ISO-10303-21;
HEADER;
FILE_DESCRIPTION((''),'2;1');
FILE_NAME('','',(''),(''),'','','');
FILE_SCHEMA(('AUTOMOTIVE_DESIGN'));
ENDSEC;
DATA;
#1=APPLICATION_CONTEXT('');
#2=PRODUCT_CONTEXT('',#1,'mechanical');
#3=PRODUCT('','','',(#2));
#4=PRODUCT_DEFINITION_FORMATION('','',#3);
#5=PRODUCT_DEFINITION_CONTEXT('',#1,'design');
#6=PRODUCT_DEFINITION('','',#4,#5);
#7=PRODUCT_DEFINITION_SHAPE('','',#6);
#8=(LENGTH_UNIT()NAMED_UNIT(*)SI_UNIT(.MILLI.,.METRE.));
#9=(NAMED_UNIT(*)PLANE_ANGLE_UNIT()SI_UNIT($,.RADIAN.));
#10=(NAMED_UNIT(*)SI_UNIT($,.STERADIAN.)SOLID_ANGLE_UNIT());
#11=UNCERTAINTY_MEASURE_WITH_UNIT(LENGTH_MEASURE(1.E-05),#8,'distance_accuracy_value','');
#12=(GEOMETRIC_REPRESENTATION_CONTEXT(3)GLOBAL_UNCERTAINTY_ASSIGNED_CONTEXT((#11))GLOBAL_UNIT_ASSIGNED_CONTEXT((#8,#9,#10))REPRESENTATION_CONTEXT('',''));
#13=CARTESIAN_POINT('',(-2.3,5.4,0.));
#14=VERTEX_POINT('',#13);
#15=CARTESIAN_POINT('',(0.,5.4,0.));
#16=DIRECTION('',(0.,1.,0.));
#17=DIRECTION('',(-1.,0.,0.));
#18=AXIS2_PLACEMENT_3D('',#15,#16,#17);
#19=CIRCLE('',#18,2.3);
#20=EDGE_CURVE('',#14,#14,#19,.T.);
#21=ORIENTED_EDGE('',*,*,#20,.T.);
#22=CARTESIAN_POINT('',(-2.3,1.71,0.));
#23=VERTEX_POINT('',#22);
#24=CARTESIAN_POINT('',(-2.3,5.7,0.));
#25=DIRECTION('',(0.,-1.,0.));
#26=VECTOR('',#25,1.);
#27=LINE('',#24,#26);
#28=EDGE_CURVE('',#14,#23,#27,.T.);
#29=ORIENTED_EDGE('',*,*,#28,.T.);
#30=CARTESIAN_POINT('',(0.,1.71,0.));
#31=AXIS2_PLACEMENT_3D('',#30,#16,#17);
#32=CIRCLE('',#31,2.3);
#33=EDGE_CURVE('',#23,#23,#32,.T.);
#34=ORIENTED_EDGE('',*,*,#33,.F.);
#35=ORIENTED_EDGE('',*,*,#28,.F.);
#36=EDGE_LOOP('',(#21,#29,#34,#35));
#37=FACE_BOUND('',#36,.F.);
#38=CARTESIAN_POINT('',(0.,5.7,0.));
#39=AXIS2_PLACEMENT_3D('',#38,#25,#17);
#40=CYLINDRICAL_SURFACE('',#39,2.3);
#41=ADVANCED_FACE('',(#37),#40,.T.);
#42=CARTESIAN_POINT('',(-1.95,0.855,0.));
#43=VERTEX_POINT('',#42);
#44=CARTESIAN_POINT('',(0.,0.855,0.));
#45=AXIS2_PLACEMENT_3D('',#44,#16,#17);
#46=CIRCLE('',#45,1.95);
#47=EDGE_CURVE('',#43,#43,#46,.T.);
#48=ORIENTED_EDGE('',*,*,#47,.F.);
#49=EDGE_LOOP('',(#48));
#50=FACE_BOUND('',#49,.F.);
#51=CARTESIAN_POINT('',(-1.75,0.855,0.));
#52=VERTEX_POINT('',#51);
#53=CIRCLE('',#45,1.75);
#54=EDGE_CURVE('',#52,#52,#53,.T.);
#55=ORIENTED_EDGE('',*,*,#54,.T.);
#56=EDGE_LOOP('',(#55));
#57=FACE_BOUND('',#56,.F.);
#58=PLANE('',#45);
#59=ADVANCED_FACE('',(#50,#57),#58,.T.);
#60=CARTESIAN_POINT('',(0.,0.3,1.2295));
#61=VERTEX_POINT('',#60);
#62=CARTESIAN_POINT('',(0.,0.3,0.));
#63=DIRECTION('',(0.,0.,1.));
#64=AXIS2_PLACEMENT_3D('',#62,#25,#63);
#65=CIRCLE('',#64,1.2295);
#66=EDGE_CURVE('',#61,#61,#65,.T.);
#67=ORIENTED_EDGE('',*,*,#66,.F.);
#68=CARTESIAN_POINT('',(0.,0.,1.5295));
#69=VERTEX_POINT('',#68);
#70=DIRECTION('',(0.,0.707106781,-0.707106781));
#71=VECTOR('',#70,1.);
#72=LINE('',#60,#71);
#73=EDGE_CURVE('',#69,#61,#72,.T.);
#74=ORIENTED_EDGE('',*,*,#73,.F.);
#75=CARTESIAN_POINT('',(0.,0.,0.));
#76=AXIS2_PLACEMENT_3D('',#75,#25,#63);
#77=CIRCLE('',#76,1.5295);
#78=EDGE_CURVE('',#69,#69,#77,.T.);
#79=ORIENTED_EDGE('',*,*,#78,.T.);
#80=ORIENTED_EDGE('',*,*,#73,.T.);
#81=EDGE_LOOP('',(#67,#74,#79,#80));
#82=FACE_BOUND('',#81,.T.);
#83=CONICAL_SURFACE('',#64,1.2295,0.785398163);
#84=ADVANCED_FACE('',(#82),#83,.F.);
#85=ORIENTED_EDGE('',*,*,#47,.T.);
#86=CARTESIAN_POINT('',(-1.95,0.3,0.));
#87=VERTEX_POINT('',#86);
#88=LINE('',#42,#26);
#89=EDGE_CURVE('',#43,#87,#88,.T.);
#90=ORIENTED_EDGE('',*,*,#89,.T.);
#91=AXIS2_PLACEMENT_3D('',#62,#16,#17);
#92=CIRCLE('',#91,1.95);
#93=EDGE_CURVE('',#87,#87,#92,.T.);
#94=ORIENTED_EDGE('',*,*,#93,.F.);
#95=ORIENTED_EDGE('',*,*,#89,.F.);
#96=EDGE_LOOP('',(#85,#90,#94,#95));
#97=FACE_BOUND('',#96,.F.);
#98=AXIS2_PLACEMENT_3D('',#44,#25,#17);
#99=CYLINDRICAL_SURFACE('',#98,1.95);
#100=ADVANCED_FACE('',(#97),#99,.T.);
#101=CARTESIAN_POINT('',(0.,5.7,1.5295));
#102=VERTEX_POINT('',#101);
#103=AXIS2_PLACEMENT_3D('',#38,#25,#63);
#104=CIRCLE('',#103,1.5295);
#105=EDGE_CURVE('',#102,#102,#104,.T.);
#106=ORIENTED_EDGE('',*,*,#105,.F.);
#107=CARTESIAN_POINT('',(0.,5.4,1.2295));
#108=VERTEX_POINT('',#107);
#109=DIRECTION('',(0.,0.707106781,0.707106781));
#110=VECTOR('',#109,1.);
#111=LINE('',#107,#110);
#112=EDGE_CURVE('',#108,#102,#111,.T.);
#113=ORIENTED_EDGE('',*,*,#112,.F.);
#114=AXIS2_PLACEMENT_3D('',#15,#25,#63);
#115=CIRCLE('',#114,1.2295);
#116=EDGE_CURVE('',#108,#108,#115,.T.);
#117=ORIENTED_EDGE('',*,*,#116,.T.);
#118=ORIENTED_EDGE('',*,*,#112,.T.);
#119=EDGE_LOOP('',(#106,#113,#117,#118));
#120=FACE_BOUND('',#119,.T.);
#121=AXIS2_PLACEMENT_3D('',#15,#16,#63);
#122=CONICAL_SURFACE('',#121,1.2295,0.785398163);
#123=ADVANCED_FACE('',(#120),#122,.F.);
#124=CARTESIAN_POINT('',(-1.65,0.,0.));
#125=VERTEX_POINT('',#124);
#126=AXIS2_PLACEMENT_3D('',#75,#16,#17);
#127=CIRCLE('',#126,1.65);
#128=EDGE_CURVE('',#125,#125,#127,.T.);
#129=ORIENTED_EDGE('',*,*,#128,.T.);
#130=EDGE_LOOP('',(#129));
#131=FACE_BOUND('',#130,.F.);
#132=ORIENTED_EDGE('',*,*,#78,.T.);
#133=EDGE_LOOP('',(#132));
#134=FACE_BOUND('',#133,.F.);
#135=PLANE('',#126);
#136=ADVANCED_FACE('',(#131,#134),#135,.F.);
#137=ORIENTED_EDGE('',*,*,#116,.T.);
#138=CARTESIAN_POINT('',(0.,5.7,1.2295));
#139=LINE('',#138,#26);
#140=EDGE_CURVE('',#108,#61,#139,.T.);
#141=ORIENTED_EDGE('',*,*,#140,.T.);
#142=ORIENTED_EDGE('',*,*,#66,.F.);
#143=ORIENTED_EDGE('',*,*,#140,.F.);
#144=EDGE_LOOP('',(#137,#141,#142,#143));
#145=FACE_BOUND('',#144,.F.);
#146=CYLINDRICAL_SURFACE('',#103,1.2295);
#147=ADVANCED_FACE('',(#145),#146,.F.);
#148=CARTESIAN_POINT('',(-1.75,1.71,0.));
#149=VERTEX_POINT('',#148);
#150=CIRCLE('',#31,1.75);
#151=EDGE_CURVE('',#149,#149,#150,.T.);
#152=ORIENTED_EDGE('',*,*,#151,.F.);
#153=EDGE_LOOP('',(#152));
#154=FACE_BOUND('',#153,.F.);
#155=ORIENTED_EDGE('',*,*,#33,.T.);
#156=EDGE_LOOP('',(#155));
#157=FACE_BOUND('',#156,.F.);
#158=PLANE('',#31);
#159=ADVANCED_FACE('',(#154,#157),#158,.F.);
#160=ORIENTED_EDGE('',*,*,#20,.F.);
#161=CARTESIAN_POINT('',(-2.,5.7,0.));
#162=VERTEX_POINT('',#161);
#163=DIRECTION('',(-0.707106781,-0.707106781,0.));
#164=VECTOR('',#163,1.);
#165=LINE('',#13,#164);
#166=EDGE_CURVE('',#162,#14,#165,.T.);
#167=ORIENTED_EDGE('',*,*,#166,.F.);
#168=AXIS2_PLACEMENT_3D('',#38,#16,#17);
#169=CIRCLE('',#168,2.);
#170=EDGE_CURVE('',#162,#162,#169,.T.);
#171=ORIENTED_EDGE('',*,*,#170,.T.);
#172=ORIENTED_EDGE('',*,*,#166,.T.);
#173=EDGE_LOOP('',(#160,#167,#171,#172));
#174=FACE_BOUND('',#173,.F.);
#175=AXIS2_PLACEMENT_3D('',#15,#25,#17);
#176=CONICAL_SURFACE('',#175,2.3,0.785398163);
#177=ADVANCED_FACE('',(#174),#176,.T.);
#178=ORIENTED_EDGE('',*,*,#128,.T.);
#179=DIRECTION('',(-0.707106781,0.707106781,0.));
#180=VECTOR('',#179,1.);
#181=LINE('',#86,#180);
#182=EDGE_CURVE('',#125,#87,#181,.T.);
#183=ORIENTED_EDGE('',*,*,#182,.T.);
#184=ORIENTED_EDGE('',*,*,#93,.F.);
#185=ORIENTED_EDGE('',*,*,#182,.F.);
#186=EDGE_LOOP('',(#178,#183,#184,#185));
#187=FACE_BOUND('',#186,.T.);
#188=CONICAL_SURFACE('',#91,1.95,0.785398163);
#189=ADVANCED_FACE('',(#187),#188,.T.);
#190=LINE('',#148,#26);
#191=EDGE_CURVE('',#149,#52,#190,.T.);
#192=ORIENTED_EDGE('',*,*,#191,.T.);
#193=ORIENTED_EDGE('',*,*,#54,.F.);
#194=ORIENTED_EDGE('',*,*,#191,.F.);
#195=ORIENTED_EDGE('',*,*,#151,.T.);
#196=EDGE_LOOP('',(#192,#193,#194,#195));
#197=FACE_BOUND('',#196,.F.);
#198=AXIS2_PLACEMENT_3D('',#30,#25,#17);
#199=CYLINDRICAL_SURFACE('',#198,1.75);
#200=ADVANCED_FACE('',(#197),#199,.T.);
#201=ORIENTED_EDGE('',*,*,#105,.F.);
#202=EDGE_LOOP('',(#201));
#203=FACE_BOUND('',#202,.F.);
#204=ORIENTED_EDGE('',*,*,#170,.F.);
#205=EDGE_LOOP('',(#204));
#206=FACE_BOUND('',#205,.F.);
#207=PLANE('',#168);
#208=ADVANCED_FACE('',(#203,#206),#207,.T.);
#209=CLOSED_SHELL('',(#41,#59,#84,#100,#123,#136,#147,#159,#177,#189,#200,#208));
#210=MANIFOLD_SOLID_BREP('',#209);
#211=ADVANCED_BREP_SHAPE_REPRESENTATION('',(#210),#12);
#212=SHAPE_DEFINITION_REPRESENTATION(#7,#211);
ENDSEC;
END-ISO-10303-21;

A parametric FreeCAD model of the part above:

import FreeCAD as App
import Part
import Sketcher
from FreeCAD import Vector
Q = App.Units.Quantity


def edges_at(feature, points):
    """Names of the edges that pass closest to the given points."""
    edges = feature.Shape.Edges
    near = lambda p: min(range(len(edges)), key=lambda i: edges[i].distToShape(Part.Vertex(*p))[0])
    return sorted({f"Edge{near(p) + 1}" for p in points})

doc = App.newDocument("Part")
body = doc.addObject("PartDesign::Body", "Body")

# Sketch on XY plane
sketch1 = body.newObject("Sketcher::SketchObject", "Sketch")
sketch1.AttachmentSupport = (doc.getObject("XY_Plane"), [""])
sketch1.MapMode = "FlatFace"
sketch1.addGeometry(Part.LineSegment(Vector(-1.95, 0, 0), Vector(0, 0, 0)), False)
sketch1.addGeometry(Part.LineSegment(Vector(0, 0, 0), Vector(0, 5.7, 0)), False)
sketch1.addGeometry(Part.LineSegment(Vector(0, 5.7, 0), Vector(-2.3, 5.7, 0)), False)
sketch1.addGeometry(Part.LineSegment(Vector(-2.3, 5.7, 0), Vector(-2.3, 1.71, 0)), False)
sketch1.addGeometry(Part.LineSegment(Vector(-2.3, 1.71, 0), Vector(-1.75, 1.71, 0)), False)
sketch1.addGeometry(Part.LineSegment(Vector(-1.75, 1.71, 0), Vector(-1.75, 0.85, 0)), False)
sketch1.addGeometry(Part.LineSegment(Vector(-1.75, 0.85, 0), Vector(-1.95, 0.85, 0)), False)
sketch1.addGeometry(Part.LineSegment(Vector(-1.95, 0.85, 0), Vector(-1.95, 0, 0)), False)
sketch1.addConstraint(Sketcher.Constraint("Coincident", 0, 2, 1, 1))
sketch1.addConstraint(Sketcher.Constraint("Coincident", 1, 2, 2, 1))
sketch1.addConstraint(Sketcher.Constraint("Coincident", 2, 2, 3, 1))
sketch1.addConstraint(Sketcher.Constraint("Coincident", 3, 2, 4, 1))
sketch1.addConstraint(Sketcher.Constraint("Coincident", 4, 2, 5, 1))
sketch1.addConstraint(Sketcher.Constraint("Coincident", 5, 2, 6, 1))
sketch1.addConstraint(Sketcher.Constraint("Coincident", 6, 2, 7, 1))
sketch1.addConstraint(Sketcher.Constraint("Coincident", 7, 2, 0, 1))
sketch1.addConstraint(Sketcher.Constraint("Horizontal", 0))
sketch1.addConstraint(Sketcher.Constraint("Vertical", 1))
sketch1.addConstraint(Sketcher.Constraint("Horizontal", 2))
sketch1.addConstraint(Sketcher.Constraint("Vertical", 3))
sketch1.addConstraint(Sketcher.Constraint("Horizontal", 4))
sketch1.addConstraint(Sketcher.Constraint("Vertical", 5))
sketch1.addConstraint(Sketcher.Constraint("Horizontal", 6))
sketch1.addConstraint(Sketcher.Constraint("Vertical", 7))
sketch1.addConstraint(Sketcher.Constraint("Coincident", 0, 2, -1, 1))
sketch1.addConstraint(Sketcher.Constraint("Equal", 5, 7))
sketch1.addConstraint(Sketcher.Constraint("DistanceX", 6, 2, 6, 1, Q("0.2 mm")))
sketch1.addConstraint(Sketcher.Constraint("DistanceY", 1, 1, 1, 2, Q("5.7 mm")))
sketch1.addConstraint(Sketcher.Constraint("DistanceY", 3, 2, 3, 1, Q("3.99 mm")))
sketch1.addConstraint(Sketcher.Constraint("DistanceX", 2, 2, 2, 1, Q("2.3 mm")))
sketch1.addConstraint(Sketcher.Constraint("DistanceX", 0, 1, 0, 2, Q("1.95 mm")))
revolution = body.newObject("PartDesign::Revolution", "Revolution")
revolution.Profile = sketch1
revolution.ReferenceAxis = (sketch1, ["V_Axis"])
revolution.Angle = 360

# Sketch on XZ plane
sketch2 = body.newObject("Sketcher::SketchObject", "Sketch001")
sketch2.AttachmentSupport = (doc.getObject("XZ_Plane"), [""])
sketch2.MapMode = "FlatFace"
sketch2.AttachmentOffset = App.Placement(Vector(0, 0, -5.7), App.Rotation())
sketch2.addGeometry(Part.Circle(Vector(0, 0, 0), Vector(0, 0, 1), 1.2), False)
sketch2.addConstraint(Sketcher.Constraint("Coincident", 0, 3, -1, 1))
sketch2.addConstraint(Sketcher.Constraint("Diameter", 0, Q("2.459 mm")))
doc.recompute()
hole = body.newObject("PartDesign::Hole", "Hole")
hole.Profile = sketch2
hole.ThreadType = "None"
hole.Diameter = 2.459
hole.DepthType = "ThroughAll"
hole.Reversed = True
doc.recompute()

chamfer = body.newObject("PartDesign::Chamfer", "Chamfer")
chamfer.Base = (hole, edges_at(hole, [
    (0, 5.7, -1.23),
    (1.95, 0, 0),
    (0, 0, -1.23),
    (2.3, 5.7, 0),
]))
chamfer.Size = 0.3

doc.recompute()
